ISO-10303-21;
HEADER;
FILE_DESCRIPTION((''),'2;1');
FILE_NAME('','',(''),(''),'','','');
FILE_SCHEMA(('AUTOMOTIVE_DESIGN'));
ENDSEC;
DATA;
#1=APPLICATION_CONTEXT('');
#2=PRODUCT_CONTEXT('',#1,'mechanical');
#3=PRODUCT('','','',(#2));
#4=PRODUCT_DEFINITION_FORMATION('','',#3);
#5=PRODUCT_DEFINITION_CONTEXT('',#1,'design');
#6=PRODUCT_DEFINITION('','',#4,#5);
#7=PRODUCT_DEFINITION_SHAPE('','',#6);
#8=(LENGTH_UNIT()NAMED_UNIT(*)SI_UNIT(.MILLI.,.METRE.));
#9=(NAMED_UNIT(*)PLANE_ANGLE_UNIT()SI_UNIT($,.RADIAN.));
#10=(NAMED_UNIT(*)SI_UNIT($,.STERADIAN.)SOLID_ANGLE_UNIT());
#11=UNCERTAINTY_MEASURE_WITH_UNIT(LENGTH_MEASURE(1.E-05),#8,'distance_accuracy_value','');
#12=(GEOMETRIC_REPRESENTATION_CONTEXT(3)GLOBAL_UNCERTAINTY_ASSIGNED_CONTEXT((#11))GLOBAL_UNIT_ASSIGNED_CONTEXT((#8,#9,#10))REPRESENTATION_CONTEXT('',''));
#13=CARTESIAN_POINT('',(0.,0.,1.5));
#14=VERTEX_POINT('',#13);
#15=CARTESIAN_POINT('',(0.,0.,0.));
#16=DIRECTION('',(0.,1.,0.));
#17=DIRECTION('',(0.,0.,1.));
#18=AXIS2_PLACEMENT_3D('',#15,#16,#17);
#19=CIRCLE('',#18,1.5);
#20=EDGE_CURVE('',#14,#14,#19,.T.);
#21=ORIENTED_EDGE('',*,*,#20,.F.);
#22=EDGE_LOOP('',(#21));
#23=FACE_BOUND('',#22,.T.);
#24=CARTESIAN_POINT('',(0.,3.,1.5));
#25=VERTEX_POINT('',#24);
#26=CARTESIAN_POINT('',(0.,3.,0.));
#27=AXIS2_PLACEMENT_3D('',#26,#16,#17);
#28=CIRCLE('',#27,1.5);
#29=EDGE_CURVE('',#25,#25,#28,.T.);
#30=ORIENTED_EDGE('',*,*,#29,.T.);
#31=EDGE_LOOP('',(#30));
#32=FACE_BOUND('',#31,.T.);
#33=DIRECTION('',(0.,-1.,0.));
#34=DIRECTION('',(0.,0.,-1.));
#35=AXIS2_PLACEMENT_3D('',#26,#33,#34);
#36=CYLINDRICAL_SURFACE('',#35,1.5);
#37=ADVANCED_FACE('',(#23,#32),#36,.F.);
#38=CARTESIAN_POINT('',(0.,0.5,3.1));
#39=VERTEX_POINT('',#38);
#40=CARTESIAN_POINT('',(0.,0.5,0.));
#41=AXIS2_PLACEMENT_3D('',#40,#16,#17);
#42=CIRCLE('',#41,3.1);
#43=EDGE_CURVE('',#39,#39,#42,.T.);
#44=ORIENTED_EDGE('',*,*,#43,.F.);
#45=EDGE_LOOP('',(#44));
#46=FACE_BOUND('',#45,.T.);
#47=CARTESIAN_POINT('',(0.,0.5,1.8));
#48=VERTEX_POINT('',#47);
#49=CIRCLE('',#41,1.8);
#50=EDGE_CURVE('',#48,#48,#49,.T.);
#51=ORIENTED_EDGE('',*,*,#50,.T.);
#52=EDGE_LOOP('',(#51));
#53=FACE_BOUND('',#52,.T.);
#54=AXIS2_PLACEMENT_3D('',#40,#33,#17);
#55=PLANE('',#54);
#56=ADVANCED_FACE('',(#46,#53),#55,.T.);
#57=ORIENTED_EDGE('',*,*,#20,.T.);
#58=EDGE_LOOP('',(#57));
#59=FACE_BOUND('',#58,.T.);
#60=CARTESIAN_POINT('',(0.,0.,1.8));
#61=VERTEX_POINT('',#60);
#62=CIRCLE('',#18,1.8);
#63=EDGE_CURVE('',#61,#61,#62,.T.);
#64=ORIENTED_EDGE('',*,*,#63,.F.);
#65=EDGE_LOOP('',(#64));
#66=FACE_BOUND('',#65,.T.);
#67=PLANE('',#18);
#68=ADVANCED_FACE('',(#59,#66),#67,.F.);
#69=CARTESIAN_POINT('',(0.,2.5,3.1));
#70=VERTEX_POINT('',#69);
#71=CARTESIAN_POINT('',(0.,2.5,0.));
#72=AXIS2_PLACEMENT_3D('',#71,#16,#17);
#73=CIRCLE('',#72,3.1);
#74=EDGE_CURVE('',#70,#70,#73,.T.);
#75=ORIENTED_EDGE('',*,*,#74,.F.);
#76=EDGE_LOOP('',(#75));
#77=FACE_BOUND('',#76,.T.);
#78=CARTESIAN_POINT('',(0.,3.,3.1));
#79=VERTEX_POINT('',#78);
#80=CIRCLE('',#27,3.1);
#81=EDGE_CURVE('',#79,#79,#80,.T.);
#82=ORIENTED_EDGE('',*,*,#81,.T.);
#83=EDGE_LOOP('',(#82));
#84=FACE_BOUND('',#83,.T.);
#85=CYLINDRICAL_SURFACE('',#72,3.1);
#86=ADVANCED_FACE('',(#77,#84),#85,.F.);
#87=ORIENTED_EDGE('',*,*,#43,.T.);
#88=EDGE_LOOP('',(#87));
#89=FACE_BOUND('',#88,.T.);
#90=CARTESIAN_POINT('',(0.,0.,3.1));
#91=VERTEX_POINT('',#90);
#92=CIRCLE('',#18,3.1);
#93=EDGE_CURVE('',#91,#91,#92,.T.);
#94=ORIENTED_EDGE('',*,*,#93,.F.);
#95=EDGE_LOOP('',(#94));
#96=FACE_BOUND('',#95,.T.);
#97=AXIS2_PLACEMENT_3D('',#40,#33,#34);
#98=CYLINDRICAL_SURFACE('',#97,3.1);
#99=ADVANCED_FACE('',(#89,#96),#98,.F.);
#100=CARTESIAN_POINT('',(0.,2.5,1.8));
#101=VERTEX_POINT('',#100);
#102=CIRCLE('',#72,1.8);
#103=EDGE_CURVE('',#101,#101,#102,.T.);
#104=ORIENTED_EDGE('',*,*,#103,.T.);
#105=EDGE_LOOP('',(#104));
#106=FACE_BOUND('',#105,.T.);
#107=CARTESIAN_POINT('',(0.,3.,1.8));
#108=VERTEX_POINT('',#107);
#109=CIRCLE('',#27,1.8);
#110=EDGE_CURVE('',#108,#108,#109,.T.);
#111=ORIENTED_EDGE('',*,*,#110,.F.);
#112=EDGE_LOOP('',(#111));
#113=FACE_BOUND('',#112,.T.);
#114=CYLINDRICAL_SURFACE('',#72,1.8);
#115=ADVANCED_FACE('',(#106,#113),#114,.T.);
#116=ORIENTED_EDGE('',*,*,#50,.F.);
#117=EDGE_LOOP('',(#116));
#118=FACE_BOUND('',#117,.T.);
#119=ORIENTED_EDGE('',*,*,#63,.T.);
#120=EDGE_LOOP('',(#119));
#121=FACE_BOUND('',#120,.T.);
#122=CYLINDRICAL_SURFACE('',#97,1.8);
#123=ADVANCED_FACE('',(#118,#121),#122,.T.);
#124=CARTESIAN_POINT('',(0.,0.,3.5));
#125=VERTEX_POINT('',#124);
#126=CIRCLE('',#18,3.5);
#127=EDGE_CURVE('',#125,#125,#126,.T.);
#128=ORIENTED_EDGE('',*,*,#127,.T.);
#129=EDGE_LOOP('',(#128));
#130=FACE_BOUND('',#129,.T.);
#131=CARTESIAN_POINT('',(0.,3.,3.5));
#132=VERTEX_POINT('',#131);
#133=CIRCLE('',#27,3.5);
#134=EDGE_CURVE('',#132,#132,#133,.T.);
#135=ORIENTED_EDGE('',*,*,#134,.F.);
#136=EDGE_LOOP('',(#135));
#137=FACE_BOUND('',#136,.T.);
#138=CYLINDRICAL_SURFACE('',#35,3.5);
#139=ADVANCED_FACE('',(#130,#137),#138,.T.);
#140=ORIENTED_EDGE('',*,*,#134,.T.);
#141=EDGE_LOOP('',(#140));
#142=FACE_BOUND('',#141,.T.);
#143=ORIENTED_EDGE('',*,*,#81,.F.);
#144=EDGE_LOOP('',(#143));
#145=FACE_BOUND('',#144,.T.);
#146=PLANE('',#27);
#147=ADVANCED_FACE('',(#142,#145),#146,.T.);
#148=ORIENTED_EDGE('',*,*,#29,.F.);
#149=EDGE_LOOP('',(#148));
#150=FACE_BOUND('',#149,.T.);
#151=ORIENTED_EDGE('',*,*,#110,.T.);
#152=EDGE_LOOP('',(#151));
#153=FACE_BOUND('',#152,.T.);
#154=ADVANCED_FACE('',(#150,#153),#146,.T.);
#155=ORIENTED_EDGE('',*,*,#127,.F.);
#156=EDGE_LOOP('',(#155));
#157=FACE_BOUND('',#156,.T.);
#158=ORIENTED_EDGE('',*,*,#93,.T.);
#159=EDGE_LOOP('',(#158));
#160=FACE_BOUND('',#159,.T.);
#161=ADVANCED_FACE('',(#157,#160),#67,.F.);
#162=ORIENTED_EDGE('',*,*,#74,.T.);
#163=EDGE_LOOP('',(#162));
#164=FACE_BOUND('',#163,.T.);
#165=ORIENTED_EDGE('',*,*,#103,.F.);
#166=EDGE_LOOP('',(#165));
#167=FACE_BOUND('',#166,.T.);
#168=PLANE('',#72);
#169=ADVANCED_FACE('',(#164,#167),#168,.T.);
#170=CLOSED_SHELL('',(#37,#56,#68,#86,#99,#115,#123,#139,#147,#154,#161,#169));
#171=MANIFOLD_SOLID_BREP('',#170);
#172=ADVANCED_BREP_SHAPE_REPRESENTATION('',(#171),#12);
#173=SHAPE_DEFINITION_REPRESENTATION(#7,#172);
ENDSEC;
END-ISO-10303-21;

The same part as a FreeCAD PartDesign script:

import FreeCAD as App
import Part
import Sketcher
from FreeCAD import Vector
Q = App.Units.Quantity

doc = App.newDocument("Part")
params = doc.addObject("Spreadsheet::Sheet", "Params")
for row, (alias, value) in enumerate([
    ("sketch1_diameter", "7 mm"),
    ("sketch1_diameter2", "3 mm"),
    ("pad1_length", "3 mm"),
    ("sketch2_diameter", "6.2 mm"),
    ("sketch2_diameter2", "3.6 mm"),
    ("pocket1_length", "0.5 mm"),
], start=1):
    params.set(f"A{row}", alias)
    params.set(f"B{row}", "=" + value)
    params.setAlias(f"B{row}", alias)

body = doc.addObject("PartDesign::Body", "Body")

# Sketch on XZ plane
sketch1 = body.newObject("Sketcher::SketchObject", "Sketch")
sketch1.AttachmentSupport = (doc.getObject("XZ_Plane"), [""])
sketch1.MapMode = "FlatFace"
sketch1.addGeometry([
    Part.Circle(Vector(0, 0, 0), Vector(0, 0, 1), 3.5),
    Part.Circle(Vector(0, 0, 0), Vector(0, 0, 1), 1.5),
], False)
sketch1.addConstraint([
    Sketcher.Constraint("Coincident", 0, 3, -1, 1),
    Sketcher.Constraint("Coincident", 1, 3, -1, 1),
    Sketcher.Constraint("Diameter", 0, Q("7 mm")),
    Sketcher.Constraint("Diameter", 1, Q("3 mm")),
])
sketch1.setExpression("Constraints[2]", "Params.sketch1_diameter")
sketch1.setExpression("Constraints[3]", "Params.sketch1_diameter2")
pad1 = body.newObject("PartDesign::Pad", "Pad")
pad1.Profile = sketch1
pad1.setExpression("Length", "Params.pad1_length")
pad1.Reversed = True

# Sketch on XZ plane
sketch2 = body.newObject("Sketcher::SketchObject", "Sketch001")
sketch2.AttachmentSupport = (doc.getObject("XZ_Plane"), [""])
sketch2.MapMode = "FlatFace"
sketch2.AttachmentOffset = App.Placement(Vector(0, 0, -3), App.Rotation())
sketch2.addGeometry([
    Part.Circle(Vector(0, 0, 0), Vector(0, 0, 1), 3.1),
    Part.Circle(Vector(0, 0, 0), Vector(0, 0, 1), 1.8),
], False)
sketch2.addConstraint([
    Sketcher.Constraint("Coincident", 0, 3, -1, 1),
    Sketcher.Constraint("Coincident", 1, 3, -1, 1),
    Sketcher.Constraint("Diameter", 0, Q("6.2 mm")),
    Sketcher.Constraint("Diameter", 1, Q("3.6 mm")),
])
sketch2.setExpression("Constraints[2]", "Params.sketch2_diameter")
sketch2.setExpression("Constraints[3]", "Params.sketch2_diameter2")
pocket1 = body.newObject("PartDesign::Pocket", "Pocket")
pocket1.Profile = sketch2
pocket1.setExpression("Length", "Params.pocket1_length")
pocket1.Reversed = True
doc.recompute()

datumplane = body.newObject("PartDesign::Plane", "DatumPlane")
datumplane.AttachmentSupport = (doc.getObject("XZ_Plane"), [""])
datumplane.MapMode = "FlatFace"
datumplane.AttachmentOffset = App.Placement(Vector(0, 0, -1.5), App.Rotation())
mirrored = body.newObject("PartDesign::Mirrored", "Mirrored")
mirrored.Originals = [pocket1]
mirrored.MirrorPlane = (datumplane, [""])
body.Tip = mirrored

doc.recompute()
